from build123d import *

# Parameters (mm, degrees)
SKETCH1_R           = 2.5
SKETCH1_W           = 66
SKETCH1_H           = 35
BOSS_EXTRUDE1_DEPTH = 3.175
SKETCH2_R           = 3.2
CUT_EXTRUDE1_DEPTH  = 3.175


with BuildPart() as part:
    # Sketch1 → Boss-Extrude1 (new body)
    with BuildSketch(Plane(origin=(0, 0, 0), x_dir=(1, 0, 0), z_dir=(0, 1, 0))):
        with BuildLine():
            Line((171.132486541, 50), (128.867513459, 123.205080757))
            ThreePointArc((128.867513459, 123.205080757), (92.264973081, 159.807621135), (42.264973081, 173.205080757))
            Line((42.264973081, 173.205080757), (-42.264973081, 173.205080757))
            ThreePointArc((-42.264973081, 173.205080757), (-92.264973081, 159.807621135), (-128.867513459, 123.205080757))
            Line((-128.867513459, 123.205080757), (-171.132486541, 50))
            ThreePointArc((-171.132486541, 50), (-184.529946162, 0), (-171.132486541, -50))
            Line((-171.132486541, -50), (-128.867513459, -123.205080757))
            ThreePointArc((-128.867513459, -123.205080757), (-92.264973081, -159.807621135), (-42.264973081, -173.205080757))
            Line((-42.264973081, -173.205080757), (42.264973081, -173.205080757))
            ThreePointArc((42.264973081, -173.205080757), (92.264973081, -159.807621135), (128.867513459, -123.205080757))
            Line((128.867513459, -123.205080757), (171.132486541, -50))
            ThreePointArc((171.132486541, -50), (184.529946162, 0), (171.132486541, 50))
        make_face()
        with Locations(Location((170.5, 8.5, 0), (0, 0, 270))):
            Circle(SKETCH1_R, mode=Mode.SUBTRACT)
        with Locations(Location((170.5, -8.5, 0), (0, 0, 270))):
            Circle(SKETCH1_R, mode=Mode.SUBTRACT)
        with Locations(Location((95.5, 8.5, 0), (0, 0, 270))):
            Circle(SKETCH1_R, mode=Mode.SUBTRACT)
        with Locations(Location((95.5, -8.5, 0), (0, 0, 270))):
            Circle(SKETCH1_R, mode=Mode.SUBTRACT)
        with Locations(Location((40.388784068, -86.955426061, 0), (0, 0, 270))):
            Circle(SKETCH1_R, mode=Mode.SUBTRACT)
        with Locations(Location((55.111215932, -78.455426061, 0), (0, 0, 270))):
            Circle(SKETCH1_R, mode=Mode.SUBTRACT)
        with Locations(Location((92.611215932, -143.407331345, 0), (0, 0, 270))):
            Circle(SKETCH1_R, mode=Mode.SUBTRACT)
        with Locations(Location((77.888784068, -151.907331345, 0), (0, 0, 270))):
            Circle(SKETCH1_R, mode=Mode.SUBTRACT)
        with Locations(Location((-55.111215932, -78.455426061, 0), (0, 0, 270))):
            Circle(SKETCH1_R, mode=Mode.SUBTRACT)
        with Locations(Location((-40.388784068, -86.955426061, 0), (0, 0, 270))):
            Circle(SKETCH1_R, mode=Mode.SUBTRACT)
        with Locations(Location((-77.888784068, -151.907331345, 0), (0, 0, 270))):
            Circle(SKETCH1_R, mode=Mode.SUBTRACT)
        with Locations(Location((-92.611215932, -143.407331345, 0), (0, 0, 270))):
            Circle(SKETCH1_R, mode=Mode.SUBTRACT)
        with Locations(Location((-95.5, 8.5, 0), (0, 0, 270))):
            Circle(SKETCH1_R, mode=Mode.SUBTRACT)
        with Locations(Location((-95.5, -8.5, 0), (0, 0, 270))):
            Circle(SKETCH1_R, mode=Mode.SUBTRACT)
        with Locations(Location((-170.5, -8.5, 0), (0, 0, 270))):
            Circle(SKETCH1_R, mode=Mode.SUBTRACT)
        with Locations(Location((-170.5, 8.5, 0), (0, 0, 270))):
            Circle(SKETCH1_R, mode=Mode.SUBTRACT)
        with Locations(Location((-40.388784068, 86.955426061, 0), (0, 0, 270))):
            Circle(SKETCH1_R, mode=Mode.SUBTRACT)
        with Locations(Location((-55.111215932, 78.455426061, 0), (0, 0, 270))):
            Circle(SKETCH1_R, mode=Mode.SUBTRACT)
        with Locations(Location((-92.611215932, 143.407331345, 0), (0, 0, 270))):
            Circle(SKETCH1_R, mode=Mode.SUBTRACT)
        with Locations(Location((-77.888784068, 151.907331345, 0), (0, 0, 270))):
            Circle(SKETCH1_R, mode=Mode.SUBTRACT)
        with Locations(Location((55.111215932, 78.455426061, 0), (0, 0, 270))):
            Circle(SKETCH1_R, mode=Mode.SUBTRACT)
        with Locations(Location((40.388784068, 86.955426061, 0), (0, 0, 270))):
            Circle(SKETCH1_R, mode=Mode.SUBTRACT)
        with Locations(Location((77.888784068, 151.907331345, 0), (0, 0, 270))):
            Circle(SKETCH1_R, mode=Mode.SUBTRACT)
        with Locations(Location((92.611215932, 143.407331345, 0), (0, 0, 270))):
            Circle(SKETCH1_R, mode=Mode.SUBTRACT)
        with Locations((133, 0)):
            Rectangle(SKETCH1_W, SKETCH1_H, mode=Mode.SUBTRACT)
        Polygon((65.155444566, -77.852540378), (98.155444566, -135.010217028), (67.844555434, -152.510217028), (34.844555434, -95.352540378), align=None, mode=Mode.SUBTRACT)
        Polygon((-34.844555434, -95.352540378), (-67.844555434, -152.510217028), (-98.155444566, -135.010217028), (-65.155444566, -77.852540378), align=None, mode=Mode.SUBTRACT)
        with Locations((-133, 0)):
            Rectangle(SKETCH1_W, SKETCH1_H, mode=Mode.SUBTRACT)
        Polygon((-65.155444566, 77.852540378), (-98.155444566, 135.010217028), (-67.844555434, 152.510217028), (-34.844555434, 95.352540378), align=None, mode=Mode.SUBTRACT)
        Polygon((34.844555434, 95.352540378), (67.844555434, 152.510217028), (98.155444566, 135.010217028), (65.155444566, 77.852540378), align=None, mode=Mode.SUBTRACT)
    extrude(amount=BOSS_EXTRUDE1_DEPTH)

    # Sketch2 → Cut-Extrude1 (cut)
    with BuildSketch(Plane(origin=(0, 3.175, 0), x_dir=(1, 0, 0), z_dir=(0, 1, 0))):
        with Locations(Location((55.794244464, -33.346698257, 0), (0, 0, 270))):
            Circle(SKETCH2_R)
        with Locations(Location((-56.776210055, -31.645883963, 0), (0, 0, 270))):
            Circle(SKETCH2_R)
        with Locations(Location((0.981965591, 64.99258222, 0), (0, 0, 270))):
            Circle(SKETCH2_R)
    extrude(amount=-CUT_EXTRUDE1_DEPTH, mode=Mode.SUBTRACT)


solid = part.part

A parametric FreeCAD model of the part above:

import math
import FreeCAD as App
import Part
import Sketcher
from FreeCAD import Vector
Q = App.Units.Quantity


def add_polygon(sketch, points):
    """Adds a closed chain of lines whose ends are joined by coincident constraints."""
    first, n = sketch.GeometryCount, len(points)
    for a, b in zip(points, points[1:] + points[:1]):
        sketch.addGeometry(Part.LineSegment(App.Vector(*a, 0), App.Vector(*b, 0)), False)
    for i in range(n):
        sketch.addConstraint(Sketcher.Constraint("Coincident", first + i, 2, first + (i + 1) % n, 1))

doc = App.newDocument("Part")
params = doc.addObject("Spreadsheet::Sheet", "Params")
for row, (alias, value) in enumerate([
    ("sketch1_diameter", "5 mm"),
    ("sketch1_radius", "100 mm"),
    ("sketch1_width", "66 mm"),
    ("sketch1_height", "35 mm"),
    ("sketch1_length", "35 mm"),
    ("pad1_length", "3.175 mm"),
    ("sketch2_diameter", "6.4 mm"),
    ("pocket1_length", "3.175 mm"),
], start=1):
    params.set(f"A{row}", alias)
    params.set(f"B{row}", "=" + value)
    params.setAlias(f"B{row}", alias)

body = doc.addObject("PartDesign::Body", "Body")

# Sketch on XZ plane
sketch1 = body.newObject("Sketcher::SketchObject", "Sketch")
sketch1.AttachmentSupport = (doc.getObject("XZ_Plane"), [""])
sketch1.MapMode = "FlatFace"
sketch1.addGeometry(Part.LineSegment(Vector(171.1, -50, 0), Vector(128.9, -123.2, 0)), False)  # 0
sketch1.addGeometry(Part.ArcOfCircle(Part.Circle(Vector(42.3, -73.2, 0), Vector(0, 0, 1), 100), math.radians(-90), math.radians(-30)), False)  # 1
sketch1.addGeometry(Part.LineSegment(Vector(42.3, -173.2, 0), Vector(-42.3, -173.2, 0)), False)  # 2
sketch1.addGeometry(Part.ArcOfCircle(Part.Circle(Vector(-42.3, -73.2, 0), Vector(0, 0, 1), 100), math.radians(-150), math.radians(-90)), False)  # 3
sketch1.addGeometry(Part.LineSegment(Vector(-128.9, -123.2, 0), Vector(-171.1, -50, 0)), False)  # 4
sketch1.addGeometry(Part.ArcOfCircle(Part.Circle(Vector(-84.5, 0, 0), Vector(0, 0, 1), 100), math.radians(150), math.radians(210)), False)  # 5
sketch1.addGeometry(Part.LineSegment(Vector(-171.1, 50, 0), Vector(-128.9, 123.2, 0)), False)  # 6
sketch1.addGeometry(Part.ArcOfCircle(Part.Circle(Vector(-42.3, 73.2, 0), Vector(0, 0, 1), 100), math.radians(90), math.radians(150)), False)  # 7
sketch1.addGeometry(Part.LineSegment(Vector(-42.3, 173.2, 0), Vector(42.3, 173.2, 0)), False)  # 8
sketch1.addGeometry(Part.ArcOfCircle(Part.Circle(Vector(42.3, 73.2, 0), Vector(0, 0, 1), 100), math.radians(30), math.radians(90)), False)  # 9
sketch1.addGeometry(Part.LineSegment(Vector(128.9, 123.2, 0), Vector(171.1, 50, 0)), False)  # 10
sketch1.addGeometry(Part.ArcOfCircle(Part.Circle(Vector(84.5, 0, 0), Vector(0, 0, 1), 100), math.radians(-30), math.radians(30)), False)  # 11
sketch1.addGeometry(Part.Circle(Vector(-92.6, 143.4, 0), Vector(0, 0, 1), 2.5), False)  # 12
sketch1.addGeometry(Part.Circle(Vector(-77.9, 151.9, 0), Vector(0, 0, 1), 2.5), False)  # 13
add_polygon(sketch1, [(-65.2, 77.9), (-34.8, 95.4), (-67.8, 152.5), (-98.2, 135)])  # lines 14-17
sketch1.addGeometry(Part.Circle(Vector(-55.1, 78.5, 0), Vector(0, 0, 1), 2.5), False)  # 18
sketch1.addGeometry(Part.Circle(Vector(-40.4, 87, 0), Vector(0, 0, 1), 2.5), False)  # 19
sketch1.addGeometry(Part.Circle(Vector(-170.5, 8.5, 0), Vector(0, 0, 1), 2.5), False)  # 20
add_polygon(sketch1, [(-100, 17.5), (-166, 17.5), (-166, -17.5), (-100, -17.5)])  # lines 21-24
sketch1.addGeometry(Part.Circle(Vector(-95.5, 8.5, 0), Vector(0, 0, 1), 2.5), False)  # 25
sketch1.addGeometry(Part.Circle(Vector(77.9, 151.9, 0), Vector(0, 0, 1), 2.5), False)  # 26
sketch1.addGeometry(Part.Circle(Vector(40.4, 87, 0), Vector(0, 0, 1), 2.5), False)  # 27
add_polygon(sketch1, [(34.8, 95.4), (65.2, 77.9), (98.2, 135), (67.8, 152.5)])  # lines 28-31
sketch1.addGeometry(Part.Circle(Vector(55.1, 78.5, 0), Vector(0, 0, 1), 2.5), False)  # 32
sketch1.addGeometry(Part.Circle(Vector(92.6, 143.4, 0), Vector(0, 0, 1), 2.5), False)  # 33
sketch1.addGeometry(Part.Circle(Vector(95.5, 8.5, 0), Vector(0, 0, 1), 2.5), False)  # 34
add_polygon(sketch1, [(166, 17.5), (100, 17.5), (100, -17.5), (166, -17.5)])  # lines 35-38
sketch1.addGeometry(Part.Circle(Vector(170.5, 8.5, 0), Vector(0, 0, 1), 2.5), False)  # 39
sketch1.addGeometry(Part.Circle(Vector(-170.5, -8.5, 0), Vector(0, 0, 1), 2.5), False)  # 40
sketch1.addGeometry(Part.Circle(Vector(-95.5, -8.5, 0), Vector(0, 0, 1), 2.5), False)  # 41
sketch1.addGeometry(Part.Circle(Vector(-92.6, -143.4, 0), Vector(0, 0, 1), 2.5), False)  # 42
sketch1.addGeometry(Part.Circle(Vector(-55.1, -78.5, 0), Vector(0, 0, 1), 2.5), False)  # 43
add_polygon(sketch1, [(-34.8, -95.4), (-65.2, -77.9), (-98.2, -135), (-67.8, -152.5)])  # lines 44-47
sketch1.addGeometry(Part.Circle(Vector(-40.4, -87, 0), Vector(0, 0, 1), 2.5), False)  # 48
sketch1.addGeometry(Part.Circle(Vector(-77.9, -151.9, 0), Vector(0, 0, 1), 2.5), False)  # 49
sketch1.addGeometry(Part.Circle(Vector(95.5, -8.5, 0), Vector(0, 0, 1), 2.5), False)  # 50
sketch1.addGeometry(Part.Circle(Vector(170.5, -8.5, 0), Vector(0, 0, 1), 2.5), False)  # 51
sketch1.addGeometry(Part.Circle(Vector(40.4, -87, 0), Vector(0, 0, 1), 2.5), False)  # 52
sketch1.addGeometry(Part.Circle(Vector(55.1, -78.5, 0), Vector(0, 0, 1), 2.5), False)  # 53
add_polygon(sketch1, [(65.2, -77.9), (34.8, -95.4), (67.8, -152.5), (98.2, -135)])  # lines 54-57
sketch1.addGeometry(Part.Circle(Vector(77.9, -151.9, 0), Vector(0, 0, 1), 2.5), False)  # 58
sketch1.addGeometry(Part.Circle(Vector(92.6, -143.4, 0), Vector(0, 0, 1), 2.5), False)  # 59
sketch1.addConstraint([
    Sketcher.Constraint("Tangent", 0, 2, 1, 2),
    Sketcher.Constraint("Tangent", 1, 1, 2, 1),
    Sketcher.Constraint("Tangent", 2, 2, 3, 2),
    Sketcher.Constraint("Tangent", 3, 1, 4, 1),
    Sketcher.Constraint("Tangent", 4, 2, 5, 2),
    Sketcher.Constraint("Tangent", 5, 1, 6, 1),
    Sketcher.Constraint("Tangent", 6, 2, 7, 2),
    Sketcher.Constraint("Tangent", 7, 1, 8, 1),
    Sketcher.Constraint("Tangent", 8, 2, 9, 2),
    Sketcher.Constraint("Tangent", 9, 1, 10, 1),
    Sketcher.Constraint("Tangent", 10, 2, 11, 2),
    Sketcher.Constraint("Tangent", 11, 1, 0, 1),
    Sketcher.Constraint("Horizontal", 2),
    Sketcher.Constraint("Horizontal", 8),
    Sketcher.Constraint("Horizontal", 21),
    Sketcher.Constraint("Vertical", 22),
    Sketcher.Constraint("Horizontal", 23),
    Sketcher.Constraint("Vertical", 24),
    Sketcher.Constraint("Horizontal", 35),
    Sketcher.Constraint("Vertical", 36),
    Sketcher.Constraint("Horizontal", 37),
    Sketcher.Constraint("Vertical", 38),
    Sketcher.Constraint("Equal", 1, 3),
    Sketcher.Constraint("Equal", 3, 5),
    Sketcher.Constraint("Equal", 5, 7),
    Sketcher.Constraint("Equal", 7, 9),
    Sketcher.Constraint("Equal", 9, 11),
    Sketcher.Constraint("Equal", 12, 13),
    Sketcher.Constraint("Equal", 13, 18),
    Sketcher.Constraint("Equal", 18, 19),
    Sketcher.Constraint("Equal", 19, 20),
    Sketcher.Constraint("Equal", 20, 25),
    Sketcher.Constraint("Equal", 25, 26),
    Sketcher.Constraint("Equal", 26, 27),
    Sketcher.Constraint("Equal", 27, 32),
    Sketcher.Constraint("Equal", 32, 33),
    Sketcher.Constraint("Equal", 33, 34),
    Sketcher.Constraint("Equal", 34, 39),
    Sketcher.Constraint("Equal", 39, 40),
    Sketcher.Constraint("Equal", 40, 41),
    Sketcher.Constraint("Equal", 41, 42),
    Sketcher.Constraint("Equal", 42, 43),
    Sketcher.Constraint("Equal", 43, 48),
    Sketcher.Constraint("Equal", 48, 49),
    Sketcher.Constraint("Equal", 49, 50),
    Sketcher.Constraint("Equal", 50, 51),
    Sketcher.Constraint("Equal", 51, 52),
    Sketcher.Constraint("Equal", 52, 53),
    Sketcher.Constraint("Equal", 53, 58),
    Sketcher.Constraint("Equal", 58, 59),
    Sketcher.Constraint("Symmetric", 1, 3, 7, 3, -1, 1),
    Sketcher.Constraint("Symmetric", 5, 3, 11, 3, -1, 1),
    Sketcher.Constraint("Symmetric", 39, 3, 40, 3, -1, 1),
    Sketcher.Constraint("Symmetric", 34, 3, 41, 3, -1, 1),
    Sketcher.Constraint("Symmetric", 33, 3, 42, 3, -1, 1),
    Sketcher.Constraint("Symmetric", 32, 3, 43, 3, -1, 1),
    Sketcher.Constraint("Symmetric", 27, 3, 48, 3, -1, 1),
    Sketcher.Constraint("Symmetric", 26, 3, 49, 3, -1, 1),
    Sketcher.Constraint("Symmetric", 25, 3, 50, 3, -1, 1),
    Sketcher.Constraint("Symmetric", 20, 3, 51, 3, -1, 1),
    Sketcher.Constraint("Symmetric", 19, 3, 52, 3, -1, 1),
    Sketcher.Constraint("Symmetric", 18, 3, 53, 3, -1, 1),
    Sketcher.Constraint("Symmetric", 13, 3, 58, 3, -1, 1),
    Sketcher.Constraint("Symmetric", 12, 3, 59, 3, -1, 1),
    Sketcher.Constraint("Symmetric", 23, 2, 35, 2, -1, 1),
    Sketcher.Constraint("Symmetric", 21, 2, 37, 2, -1, 1),
    Sketcher.Constraint("Symmetric", 28, 2, 44, 2, -1, 1),
    Sketcher.Constraint("Symmetric", 29, 2, 45, 2, -1, 1),
    Sketcher.Constraint("Symmetric", 30, 2, 46, 2, -1, 1),
    Sketcher.Constraint("Symmetric", 31, 2, 47, 2, -1, 1),
    Sketcher.Constraint("Symmetric", 14, 2, 54, 2, -1, 1),
    Sketcher.Constraint("Symmetric", 15, 2, 55, 2, -1, 1),
    Sketcher.Constraint("Symmetric", 16, 2, 56, 2, -1, 1),
    Sketcher.Constraint("Symmetric", 17, 2, 57, 2, -1, 1),
    Sketcher.Constraint("Symmetric", 13, 3, 26, 3, -2),
    Sketcher.Constraint("Symmetric", 19, 3, 27, 3, -2),
    Sketcher.Constraint("Symmetric", 18, 3, 32, 3, -2),
    Sketcher.Constraint("Symmetric", 12, 3, 33, 3, -2),
    Sketcher.Constraint("Symmetric", 25, 3, 34, 3, -2),
    Sketcher.Constraint("Symmetric", 20, 3, 39, 3, -2),
    Sketcher.Constraint("Symmetric", 0, 2, 3, 1, -2),
    Sketcher.Constraint("Symmetric", 17, 2, 28, 2, -2),
    Sketcher.Constraint("Symmetric", 16, 2, 29, 2, -2),
    Sketcher.Constraint("Symmetric", 15, 2, 30, 2, -2),
    Sketcher.Constraint("Symmetric", 14, 2, 31, 2, -2),
    Sketcher.Constraint("Parallel", 4, 10),
    Sketcher.Constraint("Perpendicular", 10, 14),
    Sketcher.Constraint("Perpendicular", 14, 15),
    Sketcher.Constraint("Perpendicular", 15, 16),
    Sketcher.Constraint("Perpendicular", 16, 17),
    Sketcher.Constraint("Horizontal", 20, 3, 25, 3),
    Sketcher.Constraint("Horizontal", 24, 2, 35, 2),
    Sketcher.Constraint("Diameter", 12, Q("5 mm")),
    Sketcher.Constraint("Radius", 1, Q("100 mm")),
    Sketcher.Constraint("DistanceX", 21, 2, 21, 1, Q("66 mm")),
    Sketcher.Constraint("DistanceY", 22, 2, 22, 1, Q("35 mm")),
    Sketcher.Constraint("Angle", 0, Q("-120 deg")),
    Sketcher.Constraint("Distance", 14, Q("35 mm")),
    Sketcher.Constraint("Distance", 15, Q("66 mm")),
    Sketcher.Constraint("DistanceX", 21, 2, -1, 1, Q("166 mm")),
    Sketcher.Constraint("DistanceX", 20, 3, -1, 1, Q("170.5 mm")),
    Sketcher.Constraint("DistanceY", -1, 1, 20, 3, Q("8.5 mm")),
    Sketcher.Constraint("DistanceX", 25, 3, -1, 1, Q("95.5 mm")),
    Sketcher.Constraint("DistanceX", 2, 2, 2, 1, Q("84.529946 mm")),
    Sketcher.Constraint("DistanceY", 1, 3, -1, 1, Q("73.205081 mm")),
    Sketcher.Constraint("DistanceY", -1, 1, 12, 3, Q("143.407331 mm")),
    Sketcher.Constraint("DistanceY", -1, 1, 13, 3, Q("151.907331 mm")),
    Sketcher.Constraint("DistanceY", -1, 1, 14, 2, Q("95.35254 mm")),
    Sketcher.Constraint("DistanceX", 12, 3, -1, 1, Q("92.611216 mm")),
    Sketcher.Constraint("DistanceX", 13, 3, -1, 1, Q("77.888784 mm")),
    Sketcher.Constraint("DistanceX", 18, 3, -1, 1, Q("55.111216 mm")),
    Sketcher.Constraint("DistanceY", -1, 1, 18, 3, Q("78.455426 mm")),
    Sketcher.Constraint("DistanceX", 19, 3, -1, 1, Q("40.388784 mm")),
    Sketcher.Constraint("DistanceY", -1, 1, 19, 3, Q("86.955426 mm")),
    Sketcher.Constraint("DistanceX", 14, 2, -1, 1, Q("34.844555 mm")),
])
sketch1.setExpression("Constraints[116]", "Params.sketch1_diameter")
sketch1.setExpression("Constraints[117]", "Params.sketch1_radius")
sketch1.setExpression("Constraints[118]", "Params.sketch1_width")
sketch1.setExpression("Constraints[119]", "Params.sketch1_height")
sketch1.setExpression("Constraints[121]", "Params.sketch1_length")
pad1 = body.newObject("PartDesign::Pad", "Pad")
pad1.Profile = sketch1
pad1.setExpression("Length", "Params.pad1_length")
pad1.Reversed = True

# Sketch on XZ plane
sketch2 = body.newObject("Sketcher::SketchObject", "Sketch001")
sketch2.AttachmentSupport = (doc.getObject("XZ_Plane"), [""])
sketch2.MapMode = "FlatFace"
sketch2.AttachmentOffset = App.Placement(Vector(0, 0, -3.175), App.Rotation())
sketch2.addGeometry([
    Part.Circle(Vector(55.8, 33.3, 0), Vector(0, 0, 1), 3.2),
    Part.Circle(Vector(-56.8, 31.6, 0), Vector(0, 0, 1), 3.2),
    Part.Circle(Vector(1, -65, 0), Vector(0, 0, 1), 3.2),
], False)
sketch2.addConstraint([
    Sketcher.Constraint("Equal", 0, 1),
    Sketcher.Constraint("Equal", 1, 2),
    Sketcher.Constraint("Diameter", 0, Q("6.4 mm")),
    Sketcher.Constraint("DistanceY", -1, 1, 0, 3, Q("33.346698 mm")),
    Sketcher.Constraint("DistanceX", 1, 3, -1, 1, Q("56.77621 mm")),
    Sketcher.Constraint("DistanceX", 2, 3, 0, 3, Q("54.812279 mm")),
    Sketcher.Constraint("DistanceY", 2, 3, 0, 3, Q("98.33928 mm")),
    Sketcher.Constraint("DistanceX", -1, 1, 0, 3, Q("55.794244 mm")),
    Sketcher.Constraint("DistanceY", -1, 1, 1, 3, Q("31.645884 mm")),
])
sketch2.setExpression("Constraints[2]", "Params.sketch2_diameter")
pocket1 = body.newObject("PartDesign::Pocket", "Pocket")
pocket1.Profile = sketch2
pocket1.setExpression("Length", "Params.pocket1_length")
pocket1.Reversed = True

doc.recompute()
